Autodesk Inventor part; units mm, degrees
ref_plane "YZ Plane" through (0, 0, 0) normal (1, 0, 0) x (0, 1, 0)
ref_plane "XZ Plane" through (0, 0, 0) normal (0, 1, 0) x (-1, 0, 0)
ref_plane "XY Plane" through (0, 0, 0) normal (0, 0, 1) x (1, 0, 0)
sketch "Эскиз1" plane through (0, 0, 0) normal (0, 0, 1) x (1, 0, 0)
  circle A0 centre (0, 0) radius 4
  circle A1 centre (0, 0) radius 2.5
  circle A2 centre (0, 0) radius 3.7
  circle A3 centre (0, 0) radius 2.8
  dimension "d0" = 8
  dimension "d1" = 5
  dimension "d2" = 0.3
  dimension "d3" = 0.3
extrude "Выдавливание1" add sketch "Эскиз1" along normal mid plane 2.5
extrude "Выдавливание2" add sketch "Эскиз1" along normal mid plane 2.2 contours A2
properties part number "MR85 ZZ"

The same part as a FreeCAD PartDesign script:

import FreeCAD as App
import Part
import Sketcher

V = App.Vector

doc = App.newDocument("Part")
body = doc.addObject("PartDesign::Body", "Body")
body.AllowCompound = True

# Sketch on XY plane
sketch1 = body.newObject("Sketcher::SketchObject", "Sketch")
sketch1.AttachmentSupport = (doc.getObject("XY_Plane"), [""])
sketch1.MapMode = "FlatFace"
sketch1.addGeometry(Part.Circle(V(0, 0, 0), V(0, 0, 1), 4), False)
sketch1.addGeometry(Part.Circle(V(0, 0, 0), V(0, 0, 1), 3.7), False)
sketch1.addGeometry(Part.Circle(V(0, 0, 0), V(0, 0, 1), 2.8), False)
sketch1.addGeometry(Part.Circle(V(0, 0, 0), V(0, 0, 1), 2.5), False)
sketch1.addConstraint(Sketcher.Constraint("Coincident", 0, 3, -1, 1))
sketch1.addConstraint(Sketcher.Constraint("Coincident", 1, 3, -1, 1))
sketch1.addConstraint(Sketcher.Constraint("Coincident", 2, 3, -1, 1))
sketch1.addConstraint(Sketcher.Constraint("Coincident", 3, 3, -1, 1))
sketch1.addConstraint(Sketcher.Constraint("Diameter", 0, 8.0))
sketch1.addConstraint(Sketcher.Constraint("Diameter", 3, 5.0))
sketch1.addConstraint(Sketcher.Constraint("Diameter", 1, 7.4))
sketch1.addConstraint(Sketcher.Constraint("Diameter", 2, 5.6))
pad1 = body.newObject("PartDesign::Pad", "Pad")
pad1.Profile = sketch1
pad1.Length = 2.5
pad1.Midplane = True

# Sketch on XY plane
sketch2 = body.newObject("Sketcher::SketchObject", "Sketch001")
sketch2.AttachmentSupport = (doc.getObject("XY_Plane"), [""])
sketch2.MapMode = "FlatFace"
sketch2.addGeometry(Part.Circle(V(0, 0, 0), V(0, 0, 1), 3.7), False)
sketch2.addGeometry(Part.Circle(V(0, 0, 0), V(0, 0, 1), 2.8), False)
sketch2.addConstraint(Sketcher.Constraint("Coincident", 0, 3, -1, 1))
sketch2.addConstraint(Sketcher.Constraint("Coincident", 1, 3, -1, 1))
sketch2.addConstraint(Sketcher.Constraint("Diameter", 0, 7.4))
sketch2.addConstraint(Sketcher.Constraint("Diameter", 1, 5.6))
pad2 = body.newObject("PartDesign::Pad", "Pad001")
pad2.Profile = sketch2
pad2.Length = 2.2
pad2.Midplane = True

doc.recompute()
